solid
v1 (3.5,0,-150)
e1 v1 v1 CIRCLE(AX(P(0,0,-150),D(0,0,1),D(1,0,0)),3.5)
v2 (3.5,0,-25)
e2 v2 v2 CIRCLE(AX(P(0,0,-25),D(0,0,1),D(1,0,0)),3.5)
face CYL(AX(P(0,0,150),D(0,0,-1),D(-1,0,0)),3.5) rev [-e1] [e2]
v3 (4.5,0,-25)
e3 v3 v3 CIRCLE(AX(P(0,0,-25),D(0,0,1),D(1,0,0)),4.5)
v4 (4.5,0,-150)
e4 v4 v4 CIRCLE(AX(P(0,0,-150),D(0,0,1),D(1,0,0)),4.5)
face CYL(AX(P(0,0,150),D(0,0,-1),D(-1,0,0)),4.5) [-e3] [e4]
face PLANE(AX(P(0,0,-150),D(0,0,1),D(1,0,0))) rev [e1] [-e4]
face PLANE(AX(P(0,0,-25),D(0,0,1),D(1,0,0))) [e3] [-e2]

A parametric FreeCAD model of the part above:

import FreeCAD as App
import Part
import Sketcher

V = App.Vector

doc = App.newDocument("Part")
body = doc.addObject("PartDesign::Body", "Body")

sketch1 = body.newObject("Sketcher::SketchObject", "Sketch")
sketch1.AttachmentSupport = (doc.getObject("XY_Plane"), [""])
sketch1.MapMode = "FlatFace"
sketch1.addGeometry([
    Part.Circle(V(0, 0, 0), V(0, 0, 1), 4.5),
    Part.Circle(V(0, 0, 0), V(0, 0, 1), 3.5),
], False)
sketch1.addConstraint([
    Sketcher.Constraint("Coincident", 0, 3, -1, 1),
    Sketcher.Constraint("Coincident", 1, 3, -1, 1),
    Sketcher.Constraint("Diameter", 0, 9.0),
    Sketcher.Constraint("Diameter", 1, 7.0),
])
pad1 = body.newObject("PartDesign::Pad", "Pad")
pad1.Profile = sketch1
pad1.Length = 300
pad1.Midplane = True

sketch2 = body.newObject("Sketcher::SketchObject", "Sketch001")
sketch2.AttachmentSupport = (doc.getObject("XY_Plane"), [""])
sketch2.MapMode = "FlatFace"
sketch2.AttachmentOffset = App.Placement(V(0, 0, 150), App.Rotation())
sketch2.addGeometry(Part.Circle(V(0, 0, 0), V(0, 0, 1), 4.5), False)
sketch2.addConstraint([
    Sketcher.Constraint("Coincident", 0, 3, -1, 1),
    Sketcher.Constraint("Diameter", 0, 9.0),
])
pocket1 = body.newObject("PartDesign::Pocket", "Pocket")
pocket1.Profile = sketch2
pocket1.Length = 175

doc.recompute()
